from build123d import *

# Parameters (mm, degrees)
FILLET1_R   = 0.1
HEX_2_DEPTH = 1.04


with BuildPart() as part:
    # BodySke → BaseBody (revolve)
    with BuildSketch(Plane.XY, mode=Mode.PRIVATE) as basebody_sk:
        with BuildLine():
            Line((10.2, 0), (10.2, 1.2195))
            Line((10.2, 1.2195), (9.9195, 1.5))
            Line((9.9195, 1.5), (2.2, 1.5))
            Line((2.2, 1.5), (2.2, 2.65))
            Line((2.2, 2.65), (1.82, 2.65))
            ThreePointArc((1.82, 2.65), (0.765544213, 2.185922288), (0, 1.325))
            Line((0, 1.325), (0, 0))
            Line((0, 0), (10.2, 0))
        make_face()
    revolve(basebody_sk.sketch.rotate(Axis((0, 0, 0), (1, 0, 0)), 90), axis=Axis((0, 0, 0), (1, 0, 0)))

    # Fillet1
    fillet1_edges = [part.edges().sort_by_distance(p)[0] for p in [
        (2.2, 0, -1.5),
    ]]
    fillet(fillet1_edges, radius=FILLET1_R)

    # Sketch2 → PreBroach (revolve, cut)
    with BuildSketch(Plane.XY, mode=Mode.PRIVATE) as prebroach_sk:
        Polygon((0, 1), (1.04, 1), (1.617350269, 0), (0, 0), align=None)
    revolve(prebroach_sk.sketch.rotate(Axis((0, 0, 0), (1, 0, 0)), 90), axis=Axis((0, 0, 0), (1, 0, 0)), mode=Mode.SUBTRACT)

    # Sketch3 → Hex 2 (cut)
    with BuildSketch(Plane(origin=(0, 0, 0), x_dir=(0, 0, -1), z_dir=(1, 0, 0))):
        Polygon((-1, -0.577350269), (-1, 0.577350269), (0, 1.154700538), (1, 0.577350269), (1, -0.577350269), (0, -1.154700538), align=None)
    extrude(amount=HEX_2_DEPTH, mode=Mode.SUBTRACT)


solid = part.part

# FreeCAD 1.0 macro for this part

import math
import FreeCAD as App
import Part
import Sketcher
from FreeCAD import Vector
Q = App.Units.Quantity


def edges_at(feature, points):
    """Names of the edges that pass closest to the given points."""
    edges = feature.Shape.Edges
    near = lambda p: min(range(len(edges)), key=lambda i: edges[i].distToShape(Part.Vertex(*p))[0])
    return sorted({f"Edge{near(p) + 1}" for p in points})


def add_polygon(sketch, points):
    """Adds a closed chain of lines whose ends are joined by coincident constraints."""
    first, n = sketch.GeometryCount, len(points)
    for a, b in zip(points, points[1:] + points[:1]):
        sketch.addGeometry(Part.LineSegment(App.Vector(*a, 0), App.Vector(*b, 0)), False)
    for i in range(n):
        sketch.addConstraint(Sketcher.Constraint("Coincident", first + i, 2, first + (i + 1) % n, 1))

doc = App.newDocument("Part")
body = doc.addObject("PartDesign::Body", "Body")

sketch1 = body.newObject("Sketcher::SketchObject", "Sketch")
sketch1.AttachmentSupport = (doc.getObject("XY_Plane"), [""])
sketch1.MapMode = "FlatFace"
sketch1.addGeometry([
    Part.LineSegment(Vector(10.2, 0, 0), Vector(10.2, 1.22, 0)),
    Part.LineSegment(Vector(10.2, 1.22, 0), Vector(9.92, 1.5, 0)),
    Part.LineSegment(Vector(9.92, 1.5, 0), Vector(2.2, 1.5, 0)),
    Part.LineSegment(Vector(2.2, 1.5, 0), Vector(2.2, 2.65, 0)),
    Part.LineSegment(Vector(2.2, 2.65, 0), Vector(1.82, 2.65, 0)),
    Part.ArcOfCircle(Part.Circle(Vector(2.36, 0, 0), Vector(0, 0, 1), 2.7), math.radians(101), math.radians(151)),
    Part.LineSegment(Vector(0, 1.32, 0), Vector(0, 0, 0)),
    Part.LineSegment(Vector(0, 0, 0), Vector(10.2, 0, 0)),
], False)
sketch1.addConstraint([
    Sketcher.Constraint("Coincident", 0, 2, 1, 1),
    Sketcher.Constraint("Coincident", 1, 2, 2, 1),
    Sketcher.Constraint("Coincident", 2, 2, 3, 1),
    Sketcher.Constraint("Coincident", 3, 2, 4, 1),
    Sketcher.Constraint("Coincident", 4, 2, 5, 1),
    Sketcher.Constraint("Coincident", 5, 2, 6, 1),
    Sketcher.Constraint("Coincident", 6, 2, 7, 1),
    Sketcher.Constraint("Coincident", 7, 2, 0, 1),
    Sketcher.Constraint("Vertical", 0),
    Sketcher.Constraint("Horizontal", 2),
    Sketcher.Constraint("Vertical", 3),
    Sketcher.Constraint("Horizontal", 4),
    Sketcher.Constraint("Vertical", 6),
    Sketcher.Constraint("Horizontal", 7),
    Sketcher.Constraint("Coincident", 6, 2, -1, 1),
    Sketcher.Constraint("PointOnObject", 5, 3, -1),
    Sketcher.Constraint("Angle", 1, Q("135 deg")),
    Sketcher.Constraint("DistanceX", 7, 1, 7, 2, Q("10.2 mm")),
    Sketcher.Constraint("DistanceX", 2, 2, 0, 2, Q("8 mm")),
    Sketcher.Constraint("DistanceX", 4, 2, 4, 1, Q("0.38 mm")),
    Sketcher.Constraint("DistanceY", 3, 1, 3, 2, Q("1.15 mm")),
    Sketcher.Constraint("DistanceY", -1, 1, 1, 2, Q("1.5 mm")),
    Sketcher.Constraint("DistanceY", 6, 2, 6, 1, Q("1.325 mm")),
    Sketcher.Constraint("DistanceX", 2, 2, 2, 1, Q("7.7195 mm")),
])
revolution = body.newObject("PartDesign::Revolution", "Revolution")
revolution.Profile = sketch1
revolution.ReferenceAxis = (sketch1, ["H_Axis"])
revolution.Angle = 360
doc.recompute()

fillet = body.newObject("PartDesign::Fillet", "Fillet")
fillet.Base = (revolution, edges_at(revolution, [(2.2, 0, -1.5)]))
fillet.Radius = 0.1

sketch2 = body.newObject("Sketcher::SketchObject", "Sketch001")
sketch2.AttachmentSupport = (doc.getObject("XY_Plane"), [""])
sketch2.MapMode = "FlatFace"
add_polygon(sketch2, [(1, 1), (0, 1), (0, 0), (1.6, 0)])
sketch2.addConstraint([
    Sketcher.Constraint("Horizontal", 0),
    Sketcher.Constraint("Vertical", 1),
    Sketcher.Constraint("Horizontal", 2),
    Sketcher.Constraint("Coincident", 1, 2, -1, 1),
    Sketcher.Constraint("DistanceY", 1, 2, 1, 1, Q("1 mm")),
    Sketcher.Constraint("Angle", 3, Q("120 deg")),
    Sketcher.Constraint("DistanceX", 0, 2, 0, 1, Q("1.04 mm")),
])
groove = body.newObject("PartDesign::Groove", "Groove")
groove.Profile = sketch2
groove.ReferenceAxis = (sketch2, ["H_Axis"])
groove.Angle = 360

sketch3 = body.newObject("Sketcher::SketchObject", "Sketch002")
sketch3.AttachmentSupport = (doc.getObject("YZ_Plane"), [""])
sketch3.MapMode = "FlatFace"
add_polygon(sketch3, [(0.6, 1), (-0.6, 1), (-1.2, 0), (-0.6, -1), (0.6, -1), (1.2, 0)])
sketch3.addConstraint([
    Sketcher.Constraint("Horizontal", 0),
    Sketcher.Constraint("Horizontal", 3),
    Sketcher.Constraint("Symmetric", 0, 2, 3, 2, -1, 1),
    Sketcher.Constraint("Symmetric", 1, 2, 4, 2, -1, 1),
    Sketcher.Constraint("PointOnObject", 1, 2, -1),
    Sketcher.Constraint("Parallel", 2, 5),
    Sketcher.Constraint("Vertical", 0, 2, 2, 2),
    Sketcher.Constraint("Angle", 1, Q("-120 deg")),
    Sketcher.Constraint("DistanceY", -1, 1, 0, 2, Q("1 mm")),
    Sketcher.Constraint("DistanceX", 0, 2, 0, 1, Q("1.154701 mm")),
])
pocket1 = body.newObject("PartDesign::Pocket", "Pocket")
pocket1.Profile = sketch3
pocket1.Length = 1.04
pocket1.Reversed = True

doc.recompute()
